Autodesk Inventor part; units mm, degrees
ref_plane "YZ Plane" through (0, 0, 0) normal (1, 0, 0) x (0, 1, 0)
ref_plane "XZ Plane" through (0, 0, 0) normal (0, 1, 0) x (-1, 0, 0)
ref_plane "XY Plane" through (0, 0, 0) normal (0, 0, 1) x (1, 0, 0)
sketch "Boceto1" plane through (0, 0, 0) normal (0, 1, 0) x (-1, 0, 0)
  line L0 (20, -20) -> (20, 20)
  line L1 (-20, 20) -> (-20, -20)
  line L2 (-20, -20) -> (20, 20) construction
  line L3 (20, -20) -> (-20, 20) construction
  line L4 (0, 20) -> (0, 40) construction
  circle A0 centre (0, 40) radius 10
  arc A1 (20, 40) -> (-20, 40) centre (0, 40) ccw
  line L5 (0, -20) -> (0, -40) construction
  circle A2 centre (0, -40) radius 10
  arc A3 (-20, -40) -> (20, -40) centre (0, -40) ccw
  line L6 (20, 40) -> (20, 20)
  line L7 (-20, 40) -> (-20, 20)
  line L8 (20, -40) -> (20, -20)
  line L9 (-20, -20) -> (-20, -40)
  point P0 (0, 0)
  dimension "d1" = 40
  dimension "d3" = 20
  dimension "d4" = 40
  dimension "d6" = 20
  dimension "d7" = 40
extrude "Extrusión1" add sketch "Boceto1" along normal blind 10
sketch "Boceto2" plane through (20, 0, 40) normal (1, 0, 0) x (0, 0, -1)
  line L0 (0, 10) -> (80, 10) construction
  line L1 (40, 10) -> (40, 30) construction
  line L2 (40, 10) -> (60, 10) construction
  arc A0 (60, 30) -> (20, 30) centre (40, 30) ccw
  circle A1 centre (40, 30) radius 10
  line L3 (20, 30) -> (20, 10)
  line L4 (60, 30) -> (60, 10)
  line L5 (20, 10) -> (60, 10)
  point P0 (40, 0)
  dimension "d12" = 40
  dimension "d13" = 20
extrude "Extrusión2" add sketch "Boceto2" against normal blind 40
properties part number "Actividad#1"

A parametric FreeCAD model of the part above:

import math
import FreeCAD as App
import Part
import Sketcher

V = App.Vector

doc = App.newDocument("Part")
body = doc.addObject("PartDesign::Body", "Body")

# Sketch on XZ plane
sketch1 = doc.addObject("Sketcher::SketchObject", "Sketch")
body.addObject(sketch1)
sketch1.AttachmentSupport = (doc.XZ_Plane, [""])
sketch1.MapMode = "FlatFace"
sketch1.addGeometry([
    Part.LineSegment(V(-20, -40, 0), V(-20, 40, 0)),  # 0
    Part.ArcOfCircle(Part.Circle(V(0, 40, 0), V(0, 0, 1), 20), math.radians(0), math.radians(180)),  # 1
    Part.LineSegment(V(20, 40, 0), V(20, -40, 0)),  # 2
    Part.ArcOfCircle(Part.Circle(V(0, -40, 0), V(0, 0, 1), 20), math.radians(180), math.radians(360)),  # 3
    Part.Circle(V(0, -40, 0), V(0, 0, 1), 10),  # 4
    Part.Circle(V(0, 40, 0), V(0, 0, 1), 10),  # 5
], False)
sketch1.addConstraint([
    Sketcher.Constraint("Tangent", 0, 2, 1, 2),
    Sketcher.Constraint("Tangent", 1, 1, 2, 1),
    Sketcher.Constraint("Tangent", 2, 2, 3, 2),
    Sketcher.Constraint("Tangent", 3, 1, 0, 1),
    Sketcher.Constraint("Vertical", 0),
    Sketcher.Constraint("Vertical", 2),
    Sketcher.Constraint("Coincident", 4, 3, 3, 3),
    Sketcher.Constraint("Coincident", 5, 3, 1, 3),
    Sketcher.Constraint("Equal", 4, 5),
    Sketcher.Constraint("Symmetric", 1, 3, 3, 3, -1, 1),
    Sketcher.Constraint("Diameter", 4, 20.0),
    Sketcher.Constraint("Radius", 1, 20.0),
    Sketcher.Constraint("DistanceY", -1, 1, 1, 3, 40.0),
])
pad1 = doc.addObject("PartDesign::Pad", "Pad")
body.addObject(pad1)
pad1.Profile = sketch1
pad1.Length = 10
pad1.Reversed = True

# Sketch on YZ plane
sketch2 = doc.addObject("Sketcher::SketchObject", "Sketch001")
body.addObject(sketch2)
sketch2.AttachmentSupport = (doc.YZ_Plane, [""])
sketch2.MapMode = "FlatFace"
sketch2.AttachmentOffset = App.Placement(V(0, 0, 20), App.Rotation())
sketch2.addGeometry([
    Part.LineSegment(V(10, -20, 0), V(30, -20, 0)),  # 0
    Part.ArcOfCircle(Part.Circle(V(30, 0, 0), V(0, 0, 1), 20), math.radians(-90), math.radians(90)),  # 1
    Part.LineSegment(V(30, 20, 0), V(10, 20, 0)),  # 2
    Part.LineSegment(V(10, 20, 0), V(10, -20, 0)),  # 3
    Part.Circle(V(30, 0, 0), V(0, 0, 1), 10),  # 4
], False)
sketch2.addConstraint([
    Sketcher.Constraint("Tangent", 0, 2, 1, 1),
    Sketcher.Constraint("Tangent", 1, 2, 2, 1),
    Sketcher.Constraint("Coincident", 2, 2, 3, 1),
    Sketcher.Constraint("Coincident", 3, 2, 0, 1),
    Sketcher.Constraint("Horizontal", 0),
    Sketcher.Constraint("Horizontal", 2),
    Sketcher.Constraint("Vertical", 3),
    Sketcher.Constraint("Coincident", 4, 3, 1, 3),
    Sketcher.Constraint("PointOnObject", 1, 3, -1),
    Sketcher.Constraint("Diameter", 4, 20.0),
    Sketcher.Constraint("Radius", 1, 20.0),
    Sketcher.Constraint("DistanceX", 0, 1, 0, 2, 20.0),
    Sketcher.Constraint("DistanceX", -1, 1, 1, 3, 30.0),
])
pad2 = doc.addObject("PartDesign::Pad", "Pad001")
body.addObject(pad2)
pad2.Profile = sketch2
pad2.Length = 40
pad2.Reversed = True

doc.recompute()
